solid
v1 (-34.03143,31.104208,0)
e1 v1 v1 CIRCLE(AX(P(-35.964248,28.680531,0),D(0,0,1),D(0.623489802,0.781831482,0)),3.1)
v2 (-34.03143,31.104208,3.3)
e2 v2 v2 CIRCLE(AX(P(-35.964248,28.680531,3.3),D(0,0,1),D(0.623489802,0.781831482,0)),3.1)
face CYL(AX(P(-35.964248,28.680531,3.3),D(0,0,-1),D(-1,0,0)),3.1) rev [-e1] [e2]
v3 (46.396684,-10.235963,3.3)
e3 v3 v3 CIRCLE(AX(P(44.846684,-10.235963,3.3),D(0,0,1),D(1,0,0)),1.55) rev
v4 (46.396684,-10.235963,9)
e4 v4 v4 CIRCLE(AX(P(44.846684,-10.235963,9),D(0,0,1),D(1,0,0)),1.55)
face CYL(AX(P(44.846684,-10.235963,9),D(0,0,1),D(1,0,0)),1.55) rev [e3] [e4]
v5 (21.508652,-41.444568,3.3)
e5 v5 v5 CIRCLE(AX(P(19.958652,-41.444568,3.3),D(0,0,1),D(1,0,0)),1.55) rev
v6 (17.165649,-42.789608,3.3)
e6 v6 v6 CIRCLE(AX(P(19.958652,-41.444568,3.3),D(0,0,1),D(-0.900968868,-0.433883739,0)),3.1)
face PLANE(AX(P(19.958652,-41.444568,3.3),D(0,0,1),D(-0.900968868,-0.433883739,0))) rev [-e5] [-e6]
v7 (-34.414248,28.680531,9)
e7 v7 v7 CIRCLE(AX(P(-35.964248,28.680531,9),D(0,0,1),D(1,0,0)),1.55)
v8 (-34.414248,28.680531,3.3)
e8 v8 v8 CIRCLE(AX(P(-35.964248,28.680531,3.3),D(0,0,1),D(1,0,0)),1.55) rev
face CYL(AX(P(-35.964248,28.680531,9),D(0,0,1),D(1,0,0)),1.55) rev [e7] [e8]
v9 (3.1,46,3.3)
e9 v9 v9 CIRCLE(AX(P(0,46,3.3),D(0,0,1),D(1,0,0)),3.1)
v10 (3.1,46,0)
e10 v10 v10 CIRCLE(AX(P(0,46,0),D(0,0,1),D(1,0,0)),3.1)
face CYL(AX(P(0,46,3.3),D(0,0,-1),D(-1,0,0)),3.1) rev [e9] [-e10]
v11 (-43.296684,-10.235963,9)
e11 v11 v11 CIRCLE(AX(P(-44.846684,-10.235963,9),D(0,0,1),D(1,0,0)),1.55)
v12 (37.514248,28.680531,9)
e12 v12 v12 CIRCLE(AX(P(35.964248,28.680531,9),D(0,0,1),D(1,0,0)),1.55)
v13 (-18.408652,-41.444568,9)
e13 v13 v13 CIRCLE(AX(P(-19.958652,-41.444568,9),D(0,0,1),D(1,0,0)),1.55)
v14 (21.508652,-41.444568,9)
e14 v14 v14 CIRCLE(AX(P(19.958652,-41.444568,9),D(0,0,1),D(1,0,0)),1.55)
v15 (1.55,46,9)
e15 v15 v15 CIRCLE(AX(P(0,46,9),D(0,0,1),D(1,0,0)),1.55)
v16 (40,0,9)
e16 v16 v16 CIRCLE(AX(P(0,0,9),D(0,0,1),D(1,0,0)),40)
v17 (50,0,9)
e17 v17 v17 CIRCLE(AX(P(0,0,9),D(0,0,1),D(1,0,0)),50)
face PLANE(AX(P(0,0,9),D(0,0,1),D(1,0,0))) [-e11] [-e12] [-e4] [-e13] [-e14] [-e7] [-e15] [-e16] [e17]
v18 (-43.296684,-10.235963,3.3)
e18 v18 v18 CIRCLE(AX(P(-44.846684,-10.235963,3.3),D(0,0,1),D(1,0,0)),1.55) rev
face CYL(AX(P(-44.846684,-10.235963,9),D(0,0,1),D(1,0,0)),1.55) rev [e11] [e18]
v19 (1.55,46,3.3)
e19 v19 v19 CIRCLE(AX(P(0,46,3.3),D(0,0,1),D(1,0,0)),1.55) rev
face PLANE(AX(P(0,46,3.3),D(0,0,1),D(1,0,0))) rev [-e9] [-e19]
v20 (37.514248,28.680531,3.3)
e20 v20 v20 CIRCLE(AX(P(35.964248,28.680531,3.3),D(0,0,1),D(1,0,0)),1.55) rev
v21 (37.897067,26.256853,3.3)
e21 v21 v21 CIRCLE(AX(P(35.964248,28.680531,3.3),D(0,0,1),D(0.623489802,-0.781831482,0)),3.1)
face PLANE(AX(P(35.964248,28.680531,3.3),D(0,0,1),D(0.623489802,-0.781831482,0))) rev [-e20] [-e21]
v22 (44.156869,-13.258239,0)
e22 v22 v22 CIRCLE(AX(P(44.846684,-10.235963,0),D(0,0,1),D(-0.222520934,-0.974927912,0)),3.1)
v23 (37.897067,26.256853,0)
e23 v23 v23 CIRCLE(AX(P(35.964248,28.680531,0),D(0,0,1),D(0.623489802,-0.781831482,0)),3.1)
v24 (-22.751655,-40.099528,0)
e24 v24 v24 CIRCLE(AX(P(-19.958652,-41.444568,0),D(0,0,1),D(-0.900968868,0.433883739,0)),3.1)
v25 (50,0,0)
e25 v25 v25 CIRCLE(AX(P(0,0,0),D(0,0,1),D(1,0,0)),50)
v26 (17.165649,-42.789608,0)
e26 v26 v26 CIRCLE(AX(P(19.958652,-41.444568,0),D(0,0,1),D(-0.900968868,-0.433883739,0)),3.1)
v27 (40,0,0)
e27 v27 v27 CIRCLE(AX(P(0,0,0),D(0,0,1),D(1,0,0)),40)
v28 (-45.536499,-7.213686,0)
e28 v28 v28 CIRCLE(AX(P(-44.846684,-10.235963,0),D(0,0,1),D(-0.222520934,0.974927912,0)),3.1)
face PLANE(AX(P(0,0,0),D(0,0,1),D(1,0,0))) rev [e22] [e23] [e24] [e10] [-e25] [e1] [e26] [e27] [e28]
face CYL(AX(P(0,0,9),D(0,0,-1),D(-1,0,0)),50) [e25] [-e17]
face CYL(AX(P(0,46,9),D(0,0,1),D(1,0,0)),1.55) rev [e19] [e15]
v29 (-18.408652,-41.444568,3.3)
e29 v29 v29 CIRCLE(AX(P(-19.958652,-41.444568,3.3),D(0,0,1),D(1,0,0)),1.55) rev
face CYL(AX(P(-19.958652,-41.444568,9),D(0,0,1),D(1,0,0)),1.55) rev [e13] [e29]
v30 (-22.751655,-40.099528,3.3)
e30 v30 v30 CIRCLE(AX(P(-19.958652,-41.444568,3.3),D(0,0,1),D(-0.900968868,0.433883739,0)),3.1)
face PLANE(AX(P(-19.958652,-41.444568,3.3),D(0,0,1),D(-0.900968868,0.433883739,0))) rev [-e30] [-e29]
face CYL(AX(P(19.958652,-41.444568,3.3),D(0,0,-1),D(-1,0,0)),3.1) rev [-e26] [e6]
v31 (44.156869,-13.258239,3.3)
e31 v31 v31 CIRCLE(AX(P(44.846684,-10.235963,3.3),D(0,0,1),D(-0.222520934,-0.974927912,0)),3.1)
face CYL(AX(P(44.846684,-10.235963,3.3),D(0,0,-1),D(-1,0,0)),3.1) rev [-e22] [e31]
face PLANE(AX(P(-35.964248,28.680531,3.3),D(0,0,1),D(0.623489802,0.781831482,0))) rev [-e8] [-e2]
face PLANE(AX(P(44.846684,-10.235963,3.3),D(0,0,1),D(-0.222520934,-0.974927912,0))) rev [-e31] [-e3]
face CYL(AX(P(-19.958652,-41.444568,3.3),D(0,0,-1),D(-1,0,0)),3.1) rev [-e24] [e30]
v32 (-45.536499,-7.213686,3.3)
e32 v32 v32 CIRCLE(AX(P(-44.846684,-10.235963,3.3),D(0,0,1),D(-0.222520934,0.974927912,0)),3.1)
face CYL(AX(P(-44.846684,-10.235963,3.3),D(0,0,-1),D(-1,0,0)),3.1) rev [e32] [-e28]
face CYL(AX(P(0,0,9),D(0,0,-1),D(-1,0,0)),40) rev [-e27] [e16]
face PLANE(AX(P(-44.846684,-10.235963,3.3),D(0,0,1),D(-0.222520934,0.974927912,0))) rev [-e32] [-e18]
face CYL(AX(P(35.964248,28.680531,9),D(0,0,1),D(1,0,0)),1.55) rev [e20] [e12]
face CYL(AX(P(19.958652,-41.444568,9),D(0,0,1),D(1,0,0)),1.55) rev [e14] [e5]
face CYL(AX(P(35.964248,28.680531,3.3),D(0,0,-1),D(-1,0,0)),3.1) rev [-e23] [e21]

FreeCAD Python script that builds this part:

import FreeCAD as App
import Part
import Sketcher
Q = App.Units.Quantity

doc = App.newDocument("Part")
params = doc.addObject("Spreadsheet::Sheet", "Params")
for row, (alias, value) in enumerate([
    ("sketch1_diameter", "100 mm"),
    ("sketch1_diameter2", "80 mm"),
    ("pad1_length", "9 mm"),
    ("sketch2_diameter", "3.1 mm"),
    ("hole_diameter", "3.1 mm"),
    ("sketch3_diameter", "6.2 mm"),
    ("pocket1_length", "3.3 mm"),
], start=1):
    params.set(f"A{row}", alias)
    params.set(f"B{row}", "=" + value)
    params.setAlias(f"B{row}", alias)

body = doc.addObject("PartDesign::Body", "Body")

sketch1 = body.newObject("Sketcher::SketchObject", "Sketch")
sketch1.AttachmentSupport = (doc.getObject("XY_Plane"), [""])
sketch1.MapMode = "FlatFace"
sketch1.addGeometry([
    Part.Circle(App.Vector(0, 0, 0), App.Vector(0, 0, 1), 50),
    Part.Circle(App.Vector(0, 0, 0), App.Vector(0, 0, 1), 40),
], False)
sketch1.addConstraint([
    Sketcher.Constraint("Coincident", 0, 3, -1, 1),
    Sketcher.Constraint("Coincident", 1, 3, -1, 1),
    Sketcher.Constraint("Diameter", 0, Q("100 mm")),
    Sketcher.Constraint("Diameter", 1, Q("80 mm")),
])
sketch1.setExpression("Constraints[2]", "Params.sketch1_diameter")
sketch1.setExpression("Constraints[3]", "Params.sketch1_diameter2")
pad1 = body.newObject("PartDesign::Pad", "Pad")
pad1.Profile = sketch1
pad1.setExpression("Length", "Params.pad1_length")

sketch2 = body.newObject("Sketcher::SketchObject", "Sketch001")
sketch2.AttachmentSupport = (doc.getObject("XY_Plane"), [""])
sketch2.MapMode = "FlatFace"
sketch2.AttachmentOffset = App.Placement(App.Vector(0, 0, 9), App.Rotation())
sketch2.addGeometry(Part.Circle(App.Vector(0, 46, 0), App.Vector(0, 0, 1), 1.6), False)
sketch2.addConstraint([
    Sketcher.Constraint("PointOnObject", 0, 3, -2),
    Sketcher.Constraint("Diameter", 0, Q("3.1 mm")),
    Sketcher.Constraint("DistanceY", -1, 1, 0, 3, Q("46 mm")),
])
sketch2.setExpression("Constraints[1]", "Params.sketch2_diameter")
doc.recompute()
hole = body.newObject("PartDesign::Hole", "Hole")
hole.Profile = sketch2
hole.ThreadType = "None"
hole.setExpression("Diameter", "Params.hole_diameter")
hole.DepthType = "ThroughAll"
doc.recompute()

polarpattern = body.newObject("PartDesign::PolarPattern", "PolarPattern")
polarpattern.Originals = [hole]
polarpattern.Axis = (doc.getObject("Z_Axis"), [""])
polarpattern.Angle = 360
polarpattern.Occurrences = 7
body.Tip = polarpattern

sketch3 = body.newObject("Sketcher::SketchObject", "Sketch002")
sketch3.AttachmentSupport = (doc.getObject("XY_Plane"), [""])
sketch3.MapMode = "FlatFace"
sketch3.addGeometry(Part.Circle(App.Vector(0, 46, 0), App.Vector(0, 0, 1), 3.1), False)
sketch3.addConstraint([
    Sketcher.Constraint("PointOnObject", 0, 3, -2),
    Sketcher.Constraint("Diameter", 0, Q("6.2 mm")),
    Sketcher.Constraint("DistanceY", -1, 1, 0, 3, Q("46 mm")),
])
sketch3.setExpression("Constraints[1]", "Params.sketch3_diameter")
pocket1 = body.newObject("PartDesign::Pocket", "Pocket")
pocket1.Profile = sketch3
pocket1.setExpression("Length", "Params.pocket1_length")
pocket1.Reversed = True
doc.recompute()

polarpattern2 = body.newObject("PartDesign::PolarPattern", "PolarPattern001")
polarpattern2.Originals = [pocket1]
polarpattern2.Axis = (doc.getObject("Z_Axis"), [""])
polarpattern2.Angle = 360
polarpattern2.Occurrences = 7
body.Tip = polarpattern2

doc.recompute()
